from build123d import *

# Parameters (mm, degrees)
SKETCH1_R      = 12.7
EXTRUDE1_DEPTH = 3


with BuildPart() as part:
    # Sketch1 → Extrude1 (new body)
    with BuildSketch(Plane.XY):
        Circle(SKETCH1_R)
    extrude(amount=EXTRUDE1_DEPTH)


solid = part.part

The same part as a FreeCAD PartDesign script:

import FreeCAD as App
import Part
import Sketcher
Q = App.Units.Quantity

doc = App.newDocument("Part")
body = doc.addObject("PartDesign::Body", "Body")

sketch1 = body.newObject("Sketcher::SketchObject", "Sketch")
sketch1.AttachmentSupport = (doc.getObject("XY_Plane"), [""])
sketch1.MapMode = "FlatFace"
sketch1.addGeometry(Part.Circle(App.Vector(0, 0, 0), App.Vector(0, 0, 1), 13), False)
sketch1.addConstraint([
    Sketcher.Constraint("Coincident", 0, 3, -1, 1),
    Sketcher.Constraint("Diameter", 0, Q("25.4 mm")),
])
pad1 = body.newObject("PartDesign::Pad", "Pad")
pad1.Profile = sketch1
pad1.Length = 3

doc.recompute()
